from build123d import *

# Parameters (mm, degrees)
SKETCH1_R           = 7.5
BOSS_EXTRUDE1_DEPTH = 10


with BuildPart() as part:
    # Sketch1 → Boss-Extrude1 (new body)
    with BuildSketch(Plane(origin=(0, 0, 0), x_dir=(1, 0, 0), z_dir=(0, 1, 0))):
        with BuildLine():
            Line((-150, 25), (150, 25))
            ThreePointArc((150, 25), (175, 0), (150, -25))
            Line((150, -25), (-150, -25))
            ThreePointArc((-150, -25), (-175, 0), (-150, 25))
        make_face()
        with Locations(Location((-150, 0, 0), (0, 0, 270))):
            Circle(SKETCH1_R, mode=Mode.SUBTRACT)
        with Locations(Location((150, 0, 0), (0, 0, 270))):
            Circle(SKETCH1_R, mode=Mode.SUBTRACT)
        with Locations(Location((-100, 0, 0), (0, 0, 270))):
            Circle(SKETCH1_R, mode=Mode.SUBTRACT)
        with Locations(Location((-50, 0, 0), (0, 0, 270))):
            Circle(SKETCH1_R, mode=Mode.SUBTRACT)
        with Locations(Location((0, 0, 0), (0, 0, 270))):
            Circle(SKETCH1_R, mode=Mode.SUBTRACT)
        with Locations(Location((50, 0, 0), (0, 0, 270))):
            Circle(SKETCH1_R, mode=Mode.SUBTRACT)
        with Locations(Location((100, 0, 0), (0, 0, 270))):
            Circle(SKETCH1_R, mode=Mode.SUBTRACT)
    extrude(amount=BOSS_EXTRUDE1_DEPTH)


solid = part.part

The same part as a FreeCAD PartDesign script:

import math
import FreeCAD as App
import Part
import Sketcher

V = App.Vector

doc = App.newDocument("Part")
body = doc.addObject("PartDesign::Body", "Body")

sketch1 = doc.addObject("Sketcher::SketchObject", "Sketch")
body.addObject(sketch1)
sketch1.AttachmentSupport = (doc.XZ_Plane, [""])
sketch1.MapMode = "FlatFace"
sketch1.addGeometry(Part.LineSegment(V(150, -25, 0), V(-150, -25, 0)), False)
sketch1.addGeometry(Part.ArcOfCircle(Part.Circle(V(-150, 0, 0), V(0, 0, 1), 25), math.radians(90), math.radians(270)), False)
sketch1.addGeometry(Part.LineSegment(V(-150, 25, 0), V(150, 25, 0)), False)
sketch1.addGeometry(Part.ArcOfCircle(Part.Circle(V(150, 0, 0), V(0, 0, 1), 25), math.radians(-90), math.radians(90)), False)
sketch1.addGeometry(Part.Circle(V(150, 0, 0), V(0, 0, 1), 7.5), False)
sketch1.addGeometry(Part.Circle(V(100, 0, 0), V(0, 0, 1), 7.5), False)
sketch1.addGeometry(Part.Circle(V(50, 0, 0), V(0, 0, 1), 7.5), False)
sketch1.addGeometry(Part.Circle(V(0, 0, 0), V(0, 0, 1), 7.5), False)
sketch1.addGeometry(Part.Circle(V(-50, 0, 0), V(0, 0, 1), 7.5), False)
sketch1.addGeometry(Part.Circle(V(-100, 0, 0), V(0, 0, 1), 7.5), False)
sketch1.addGeometry(Part.Circle(V(-150, 0, 0), V(0, 0, 1), 7.5), False)
sketch1.addConstraint(Sketcher.Constraint("Tangent", 0, 2, 1, 2))
sketch1.addConstraint(Sketcher.Constraint("Tangent", 1, 1, 2, 1))
sketch1.addConstraint(Sketcher.Constraint("Tangent", 2, 2, 3, 2))
sketch1.addConstraint(Sketcher.Constraint("Tangent", 3, 1, 0, 1))
sketch1.addConstraint(Sketcher.Constraint("Horizontal", 0))
sketch1.addConstraint(Sketcher.Constraint("Horizontal", 2))
sketch1.addConstraint(Sketcher.Constraint("Coincident", 7, 3, -1, 1))
sketch1.addConstraint(Sketcher.Constraint("Coincident", 4, 3, 3, 3))
sketch1.addConstraint(Sketcher.Constraint("Coincident", 10, 3, 1, 3))
sketch1.addConstraint(Sketcher.Constraint("Equal", 4, 5))
sketch1.addConstraint(Sketcher.Constraint("Equal", 5, 6))
sketch1.addConstraint(Sketcher.Constraint("Equal", 6, 7))
sketch1.addConstraint(Sketcher.Constraint("Equal", 7, 8))
sketch1.addConstraint(Sketcher.Constraint("Equal", 8, 9))
sketch1.addConstraint(Sketcher.Constraint("Equal", 9, 10))
sketch1.addConstraint(Sketcher.Constraint("Symmetric", 1, 3, 3, 3, -1, 1))
sketch1.addConstraint(Sketcher.Constraint("Symmetric", 6, 3, 8, 3, -1, 1))
sketch1.addConstraint(Sketcher.Constraint("Symmetric", 5, 3, 9, 3, -1, 1))
sketch1.addConstraint(Sketcher.Constraint("PointOnObject", 5, 3, -1))
sketch1.addConstraint(Sketcher.Constraint("PointOnObject", 6, 3, -1))
sketch1.addConstraint(Sketcher.Constraint("Diameter", 4, 15.0))
sketch1.addConstraint(Sketcher.Constraint("Radius", 1, 25.0))
sketch1.addConstraint(Sketcher.Constraint("DistanceX", 0, 2, 0, 1, 300.0))
sketch1.addConstraint(Sketcher.Constraint("DistanceX", -1, 1, 5, 3, 100.0))
sketch1.addConstraint(Sketcher.Constraint("DistanceX", -1, 1, 6, 3, 50.0))
pad1 = doc.addObject("PartDesign::Pad", "Pad")
body.addObject(pad1)
pad1.Profile = sketch1
pad1.Length = 10
pad1.Reversed = True

doc.recompute()
